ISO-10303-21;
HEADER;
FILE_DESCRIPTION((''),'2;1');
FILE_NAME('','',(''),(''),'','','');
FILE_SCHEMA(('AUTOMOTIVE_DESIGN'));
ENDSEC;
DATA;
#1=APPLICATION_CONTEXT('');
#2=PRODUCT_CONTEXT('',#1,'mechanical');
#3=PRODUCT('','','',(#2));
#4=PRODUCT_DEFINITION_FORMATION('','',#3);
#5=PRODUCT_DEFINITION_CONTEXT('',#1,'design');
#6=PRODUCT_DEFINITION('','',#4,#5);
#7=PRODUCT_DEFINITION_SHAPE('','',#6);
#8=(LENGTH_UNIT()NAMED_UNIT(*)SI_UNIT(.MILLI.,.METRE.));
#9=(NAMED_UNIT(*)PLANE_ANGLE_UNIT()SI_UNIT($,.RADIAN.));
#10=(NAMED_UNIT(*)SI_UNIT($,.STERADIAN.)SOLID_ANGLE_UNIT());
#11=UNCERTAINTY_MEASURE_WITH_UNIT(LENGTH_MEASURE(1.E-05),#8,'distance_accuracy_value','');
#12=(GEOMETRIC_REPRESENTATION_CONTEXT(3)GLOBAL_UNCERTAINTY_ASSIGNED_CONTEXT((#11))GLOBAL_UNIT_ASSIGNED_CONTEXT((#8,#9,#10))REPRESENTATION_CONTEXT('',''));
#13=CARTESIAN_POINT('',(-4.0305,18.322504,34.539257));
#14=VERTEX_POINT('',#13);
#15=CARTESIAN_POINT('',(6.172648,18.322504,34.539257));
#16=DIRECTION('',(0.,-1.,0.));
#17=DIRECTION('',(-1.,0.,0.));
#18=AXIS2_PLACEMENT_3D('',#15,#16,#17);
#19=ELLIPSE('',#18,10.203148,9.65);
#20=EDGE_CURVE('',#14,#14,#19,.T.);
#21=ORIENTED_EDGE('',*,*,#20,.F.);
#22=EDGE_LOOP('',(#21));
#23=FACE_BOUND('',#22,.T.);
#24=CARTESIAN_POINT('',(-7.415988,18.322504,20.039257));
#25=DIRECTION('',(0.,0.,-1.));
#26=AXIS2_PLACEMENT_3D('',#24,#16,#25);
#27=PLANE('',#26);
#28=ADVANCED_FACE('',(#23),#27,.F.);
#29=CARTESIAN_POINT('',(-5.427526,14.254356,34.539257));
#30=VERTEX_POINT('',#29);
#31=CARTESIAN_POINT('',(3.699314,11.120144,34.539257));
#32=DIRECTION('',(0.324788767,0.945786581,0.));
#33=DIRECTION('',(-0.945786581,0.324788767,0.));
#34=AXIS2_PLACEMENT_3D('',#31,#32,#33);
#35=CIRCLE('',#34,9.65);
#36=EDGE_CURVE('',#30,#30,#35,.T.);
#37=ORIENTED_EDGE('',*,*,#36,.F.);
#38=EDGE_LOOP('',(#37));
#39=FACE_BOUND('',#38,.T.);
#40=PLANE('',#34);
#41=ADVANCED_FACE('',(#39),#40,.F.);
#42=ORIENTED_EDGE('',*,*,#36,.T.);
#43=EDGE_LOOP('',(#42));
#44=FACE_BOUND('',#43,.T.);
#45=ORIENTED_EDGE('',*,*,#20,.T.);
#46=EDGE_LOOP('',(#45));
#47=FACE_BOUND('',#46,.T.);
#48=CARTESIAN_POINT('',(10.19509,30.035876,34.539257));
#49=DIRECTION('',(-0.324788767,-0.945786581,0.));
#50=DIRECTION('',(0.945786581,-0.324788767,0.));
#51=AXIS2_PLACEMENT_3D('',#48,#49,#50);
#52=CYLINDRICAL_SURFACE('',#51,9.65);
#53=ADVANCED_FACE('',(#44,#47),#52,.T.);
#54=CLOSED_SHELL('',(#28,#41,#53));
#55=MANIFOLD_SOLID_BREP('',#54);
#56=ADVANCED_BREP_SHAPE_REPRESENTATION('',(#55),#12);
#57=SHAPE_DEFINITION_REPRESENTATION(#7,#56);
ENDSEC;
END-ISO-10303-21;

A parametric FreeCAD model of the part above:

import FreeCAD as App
import Part
import Sketcher

V = App.Vector
Q = App.Units.Quantity


def add_polygon(sketch, points):
    """Adds a closed chain of lines whose ends are joined by coincident constraints."""
    first, n = sketch.GeometryCount, len(points)
    for a, b in zip(points, points[1:] + points[:1]):
        sketch.addGeometry(Part.LineSegment(App.Vector(*a, 0), App.Vector(*b, 0)), False)
    for i in range(n):
        sketch.addConstraint(Sketcher.Constraint("Coincident", first + i, 2, first + (i + 1) % n, 1))

doc = App.newDocument("Part")
params = doc.addObject("Spreadsheet::Sheet", "Params")
for row, (alias, value) in enumerate([
    ("sketch1_diameter", "19.3 mm"),
    ("pad1_length", "20 mm"),
    ("pocket1_length", "25 mm"),
], start=1):
    params.set(f"A{row}", alias)
    params.set(f"B{row}", "=" + value)
    params.setAlias(f"B{row}", alias)

body = doc.addObject("PartDesign::Body", "Body")

sketch1 = body.newObject("Sketcher::SketchObject", "Sketch")
sketch1.Placement = App.Placement(V(3.806128, 11.083464, 0), App.Rotation(V(0.945786581, -0.324788767, 0), V(0, 0, -1), V(0.324788767, 0.945786581, 0), "ZXY"))
sketch1.addGeometry(Part.Circle(V(0, -35, 0), V(0, 0, 1), 10), False)
sketch1.addConstraint(Sketcher.Constraint("Diameter", 0, Q("19.3 mm")))
sketch1.addConstraint(Sketcher.Constraint("DistanceX", 0, 3, -1, 1, Q("0.112936 mm")))
sketch1.addConstraint(Sketcher.Constraint("DistanceY", 0, 3, -1, 1, Q("34.539257 mm")))
sketch1.setExpression("Constraints[0]", "Params.sketch1_diameter")
pad1 = body.newObject("PartDesign::Pad", "Pad")
pad1.Profile = sketch1
pad1.setExpression("Length", "Params.pad1_length")

sketch2 = body.newObject("Sketcher::SketchObject", "Sketch001")
sketch2.AttachmentSupport = (doc.getObject("XY_Plane"), [""])
sketch2.MapMode = "FlatFace"
sketch2.AttachmentOffset = App.Placement(V(0, 0, 45.039257), App.Rotation())
add_polygon(sketch2, [(-7, 35), (-7, 18), (30, 18), (30, 35)])
sketch2.addConstraint(Sketcher.Constraint("Vertical", 0))
sketch2.addConstraint(Sketcher.Constraint("Horizontal", 1))
sketch2.addConstraint(Sketcher.Constraint("Vertical", 2))
sketch2.addConstraint(Sketcher.Constraint("Horizontal", 3))
sketch2.addConstraint(Sketcher.Constraint("DistanceX", 1, 1, 1, 2, Q("37.049595 mm")))
sketch2.addConstraint(Sketcher.Constraint("DistanceY", 0, 2, 0, 1, Q("16.713527 mm")))
sketch2.addConstraint(Sketcher.Constraint("DistanceX", 0, 2, -1, 1, Q("7.415988 mm")))
sketch2.addConstraint(Sketcher.Constraint("DistanceY", -1, 1, 2, 2, Q("35.036031 mm")))
pocket1 = body.newObject("PartDesign::Pocket", "Pocket")
pocket1.Profile = sketch2
pocket1.setExpression("Length", "Params.pocket1_length")

doc.recompute()
